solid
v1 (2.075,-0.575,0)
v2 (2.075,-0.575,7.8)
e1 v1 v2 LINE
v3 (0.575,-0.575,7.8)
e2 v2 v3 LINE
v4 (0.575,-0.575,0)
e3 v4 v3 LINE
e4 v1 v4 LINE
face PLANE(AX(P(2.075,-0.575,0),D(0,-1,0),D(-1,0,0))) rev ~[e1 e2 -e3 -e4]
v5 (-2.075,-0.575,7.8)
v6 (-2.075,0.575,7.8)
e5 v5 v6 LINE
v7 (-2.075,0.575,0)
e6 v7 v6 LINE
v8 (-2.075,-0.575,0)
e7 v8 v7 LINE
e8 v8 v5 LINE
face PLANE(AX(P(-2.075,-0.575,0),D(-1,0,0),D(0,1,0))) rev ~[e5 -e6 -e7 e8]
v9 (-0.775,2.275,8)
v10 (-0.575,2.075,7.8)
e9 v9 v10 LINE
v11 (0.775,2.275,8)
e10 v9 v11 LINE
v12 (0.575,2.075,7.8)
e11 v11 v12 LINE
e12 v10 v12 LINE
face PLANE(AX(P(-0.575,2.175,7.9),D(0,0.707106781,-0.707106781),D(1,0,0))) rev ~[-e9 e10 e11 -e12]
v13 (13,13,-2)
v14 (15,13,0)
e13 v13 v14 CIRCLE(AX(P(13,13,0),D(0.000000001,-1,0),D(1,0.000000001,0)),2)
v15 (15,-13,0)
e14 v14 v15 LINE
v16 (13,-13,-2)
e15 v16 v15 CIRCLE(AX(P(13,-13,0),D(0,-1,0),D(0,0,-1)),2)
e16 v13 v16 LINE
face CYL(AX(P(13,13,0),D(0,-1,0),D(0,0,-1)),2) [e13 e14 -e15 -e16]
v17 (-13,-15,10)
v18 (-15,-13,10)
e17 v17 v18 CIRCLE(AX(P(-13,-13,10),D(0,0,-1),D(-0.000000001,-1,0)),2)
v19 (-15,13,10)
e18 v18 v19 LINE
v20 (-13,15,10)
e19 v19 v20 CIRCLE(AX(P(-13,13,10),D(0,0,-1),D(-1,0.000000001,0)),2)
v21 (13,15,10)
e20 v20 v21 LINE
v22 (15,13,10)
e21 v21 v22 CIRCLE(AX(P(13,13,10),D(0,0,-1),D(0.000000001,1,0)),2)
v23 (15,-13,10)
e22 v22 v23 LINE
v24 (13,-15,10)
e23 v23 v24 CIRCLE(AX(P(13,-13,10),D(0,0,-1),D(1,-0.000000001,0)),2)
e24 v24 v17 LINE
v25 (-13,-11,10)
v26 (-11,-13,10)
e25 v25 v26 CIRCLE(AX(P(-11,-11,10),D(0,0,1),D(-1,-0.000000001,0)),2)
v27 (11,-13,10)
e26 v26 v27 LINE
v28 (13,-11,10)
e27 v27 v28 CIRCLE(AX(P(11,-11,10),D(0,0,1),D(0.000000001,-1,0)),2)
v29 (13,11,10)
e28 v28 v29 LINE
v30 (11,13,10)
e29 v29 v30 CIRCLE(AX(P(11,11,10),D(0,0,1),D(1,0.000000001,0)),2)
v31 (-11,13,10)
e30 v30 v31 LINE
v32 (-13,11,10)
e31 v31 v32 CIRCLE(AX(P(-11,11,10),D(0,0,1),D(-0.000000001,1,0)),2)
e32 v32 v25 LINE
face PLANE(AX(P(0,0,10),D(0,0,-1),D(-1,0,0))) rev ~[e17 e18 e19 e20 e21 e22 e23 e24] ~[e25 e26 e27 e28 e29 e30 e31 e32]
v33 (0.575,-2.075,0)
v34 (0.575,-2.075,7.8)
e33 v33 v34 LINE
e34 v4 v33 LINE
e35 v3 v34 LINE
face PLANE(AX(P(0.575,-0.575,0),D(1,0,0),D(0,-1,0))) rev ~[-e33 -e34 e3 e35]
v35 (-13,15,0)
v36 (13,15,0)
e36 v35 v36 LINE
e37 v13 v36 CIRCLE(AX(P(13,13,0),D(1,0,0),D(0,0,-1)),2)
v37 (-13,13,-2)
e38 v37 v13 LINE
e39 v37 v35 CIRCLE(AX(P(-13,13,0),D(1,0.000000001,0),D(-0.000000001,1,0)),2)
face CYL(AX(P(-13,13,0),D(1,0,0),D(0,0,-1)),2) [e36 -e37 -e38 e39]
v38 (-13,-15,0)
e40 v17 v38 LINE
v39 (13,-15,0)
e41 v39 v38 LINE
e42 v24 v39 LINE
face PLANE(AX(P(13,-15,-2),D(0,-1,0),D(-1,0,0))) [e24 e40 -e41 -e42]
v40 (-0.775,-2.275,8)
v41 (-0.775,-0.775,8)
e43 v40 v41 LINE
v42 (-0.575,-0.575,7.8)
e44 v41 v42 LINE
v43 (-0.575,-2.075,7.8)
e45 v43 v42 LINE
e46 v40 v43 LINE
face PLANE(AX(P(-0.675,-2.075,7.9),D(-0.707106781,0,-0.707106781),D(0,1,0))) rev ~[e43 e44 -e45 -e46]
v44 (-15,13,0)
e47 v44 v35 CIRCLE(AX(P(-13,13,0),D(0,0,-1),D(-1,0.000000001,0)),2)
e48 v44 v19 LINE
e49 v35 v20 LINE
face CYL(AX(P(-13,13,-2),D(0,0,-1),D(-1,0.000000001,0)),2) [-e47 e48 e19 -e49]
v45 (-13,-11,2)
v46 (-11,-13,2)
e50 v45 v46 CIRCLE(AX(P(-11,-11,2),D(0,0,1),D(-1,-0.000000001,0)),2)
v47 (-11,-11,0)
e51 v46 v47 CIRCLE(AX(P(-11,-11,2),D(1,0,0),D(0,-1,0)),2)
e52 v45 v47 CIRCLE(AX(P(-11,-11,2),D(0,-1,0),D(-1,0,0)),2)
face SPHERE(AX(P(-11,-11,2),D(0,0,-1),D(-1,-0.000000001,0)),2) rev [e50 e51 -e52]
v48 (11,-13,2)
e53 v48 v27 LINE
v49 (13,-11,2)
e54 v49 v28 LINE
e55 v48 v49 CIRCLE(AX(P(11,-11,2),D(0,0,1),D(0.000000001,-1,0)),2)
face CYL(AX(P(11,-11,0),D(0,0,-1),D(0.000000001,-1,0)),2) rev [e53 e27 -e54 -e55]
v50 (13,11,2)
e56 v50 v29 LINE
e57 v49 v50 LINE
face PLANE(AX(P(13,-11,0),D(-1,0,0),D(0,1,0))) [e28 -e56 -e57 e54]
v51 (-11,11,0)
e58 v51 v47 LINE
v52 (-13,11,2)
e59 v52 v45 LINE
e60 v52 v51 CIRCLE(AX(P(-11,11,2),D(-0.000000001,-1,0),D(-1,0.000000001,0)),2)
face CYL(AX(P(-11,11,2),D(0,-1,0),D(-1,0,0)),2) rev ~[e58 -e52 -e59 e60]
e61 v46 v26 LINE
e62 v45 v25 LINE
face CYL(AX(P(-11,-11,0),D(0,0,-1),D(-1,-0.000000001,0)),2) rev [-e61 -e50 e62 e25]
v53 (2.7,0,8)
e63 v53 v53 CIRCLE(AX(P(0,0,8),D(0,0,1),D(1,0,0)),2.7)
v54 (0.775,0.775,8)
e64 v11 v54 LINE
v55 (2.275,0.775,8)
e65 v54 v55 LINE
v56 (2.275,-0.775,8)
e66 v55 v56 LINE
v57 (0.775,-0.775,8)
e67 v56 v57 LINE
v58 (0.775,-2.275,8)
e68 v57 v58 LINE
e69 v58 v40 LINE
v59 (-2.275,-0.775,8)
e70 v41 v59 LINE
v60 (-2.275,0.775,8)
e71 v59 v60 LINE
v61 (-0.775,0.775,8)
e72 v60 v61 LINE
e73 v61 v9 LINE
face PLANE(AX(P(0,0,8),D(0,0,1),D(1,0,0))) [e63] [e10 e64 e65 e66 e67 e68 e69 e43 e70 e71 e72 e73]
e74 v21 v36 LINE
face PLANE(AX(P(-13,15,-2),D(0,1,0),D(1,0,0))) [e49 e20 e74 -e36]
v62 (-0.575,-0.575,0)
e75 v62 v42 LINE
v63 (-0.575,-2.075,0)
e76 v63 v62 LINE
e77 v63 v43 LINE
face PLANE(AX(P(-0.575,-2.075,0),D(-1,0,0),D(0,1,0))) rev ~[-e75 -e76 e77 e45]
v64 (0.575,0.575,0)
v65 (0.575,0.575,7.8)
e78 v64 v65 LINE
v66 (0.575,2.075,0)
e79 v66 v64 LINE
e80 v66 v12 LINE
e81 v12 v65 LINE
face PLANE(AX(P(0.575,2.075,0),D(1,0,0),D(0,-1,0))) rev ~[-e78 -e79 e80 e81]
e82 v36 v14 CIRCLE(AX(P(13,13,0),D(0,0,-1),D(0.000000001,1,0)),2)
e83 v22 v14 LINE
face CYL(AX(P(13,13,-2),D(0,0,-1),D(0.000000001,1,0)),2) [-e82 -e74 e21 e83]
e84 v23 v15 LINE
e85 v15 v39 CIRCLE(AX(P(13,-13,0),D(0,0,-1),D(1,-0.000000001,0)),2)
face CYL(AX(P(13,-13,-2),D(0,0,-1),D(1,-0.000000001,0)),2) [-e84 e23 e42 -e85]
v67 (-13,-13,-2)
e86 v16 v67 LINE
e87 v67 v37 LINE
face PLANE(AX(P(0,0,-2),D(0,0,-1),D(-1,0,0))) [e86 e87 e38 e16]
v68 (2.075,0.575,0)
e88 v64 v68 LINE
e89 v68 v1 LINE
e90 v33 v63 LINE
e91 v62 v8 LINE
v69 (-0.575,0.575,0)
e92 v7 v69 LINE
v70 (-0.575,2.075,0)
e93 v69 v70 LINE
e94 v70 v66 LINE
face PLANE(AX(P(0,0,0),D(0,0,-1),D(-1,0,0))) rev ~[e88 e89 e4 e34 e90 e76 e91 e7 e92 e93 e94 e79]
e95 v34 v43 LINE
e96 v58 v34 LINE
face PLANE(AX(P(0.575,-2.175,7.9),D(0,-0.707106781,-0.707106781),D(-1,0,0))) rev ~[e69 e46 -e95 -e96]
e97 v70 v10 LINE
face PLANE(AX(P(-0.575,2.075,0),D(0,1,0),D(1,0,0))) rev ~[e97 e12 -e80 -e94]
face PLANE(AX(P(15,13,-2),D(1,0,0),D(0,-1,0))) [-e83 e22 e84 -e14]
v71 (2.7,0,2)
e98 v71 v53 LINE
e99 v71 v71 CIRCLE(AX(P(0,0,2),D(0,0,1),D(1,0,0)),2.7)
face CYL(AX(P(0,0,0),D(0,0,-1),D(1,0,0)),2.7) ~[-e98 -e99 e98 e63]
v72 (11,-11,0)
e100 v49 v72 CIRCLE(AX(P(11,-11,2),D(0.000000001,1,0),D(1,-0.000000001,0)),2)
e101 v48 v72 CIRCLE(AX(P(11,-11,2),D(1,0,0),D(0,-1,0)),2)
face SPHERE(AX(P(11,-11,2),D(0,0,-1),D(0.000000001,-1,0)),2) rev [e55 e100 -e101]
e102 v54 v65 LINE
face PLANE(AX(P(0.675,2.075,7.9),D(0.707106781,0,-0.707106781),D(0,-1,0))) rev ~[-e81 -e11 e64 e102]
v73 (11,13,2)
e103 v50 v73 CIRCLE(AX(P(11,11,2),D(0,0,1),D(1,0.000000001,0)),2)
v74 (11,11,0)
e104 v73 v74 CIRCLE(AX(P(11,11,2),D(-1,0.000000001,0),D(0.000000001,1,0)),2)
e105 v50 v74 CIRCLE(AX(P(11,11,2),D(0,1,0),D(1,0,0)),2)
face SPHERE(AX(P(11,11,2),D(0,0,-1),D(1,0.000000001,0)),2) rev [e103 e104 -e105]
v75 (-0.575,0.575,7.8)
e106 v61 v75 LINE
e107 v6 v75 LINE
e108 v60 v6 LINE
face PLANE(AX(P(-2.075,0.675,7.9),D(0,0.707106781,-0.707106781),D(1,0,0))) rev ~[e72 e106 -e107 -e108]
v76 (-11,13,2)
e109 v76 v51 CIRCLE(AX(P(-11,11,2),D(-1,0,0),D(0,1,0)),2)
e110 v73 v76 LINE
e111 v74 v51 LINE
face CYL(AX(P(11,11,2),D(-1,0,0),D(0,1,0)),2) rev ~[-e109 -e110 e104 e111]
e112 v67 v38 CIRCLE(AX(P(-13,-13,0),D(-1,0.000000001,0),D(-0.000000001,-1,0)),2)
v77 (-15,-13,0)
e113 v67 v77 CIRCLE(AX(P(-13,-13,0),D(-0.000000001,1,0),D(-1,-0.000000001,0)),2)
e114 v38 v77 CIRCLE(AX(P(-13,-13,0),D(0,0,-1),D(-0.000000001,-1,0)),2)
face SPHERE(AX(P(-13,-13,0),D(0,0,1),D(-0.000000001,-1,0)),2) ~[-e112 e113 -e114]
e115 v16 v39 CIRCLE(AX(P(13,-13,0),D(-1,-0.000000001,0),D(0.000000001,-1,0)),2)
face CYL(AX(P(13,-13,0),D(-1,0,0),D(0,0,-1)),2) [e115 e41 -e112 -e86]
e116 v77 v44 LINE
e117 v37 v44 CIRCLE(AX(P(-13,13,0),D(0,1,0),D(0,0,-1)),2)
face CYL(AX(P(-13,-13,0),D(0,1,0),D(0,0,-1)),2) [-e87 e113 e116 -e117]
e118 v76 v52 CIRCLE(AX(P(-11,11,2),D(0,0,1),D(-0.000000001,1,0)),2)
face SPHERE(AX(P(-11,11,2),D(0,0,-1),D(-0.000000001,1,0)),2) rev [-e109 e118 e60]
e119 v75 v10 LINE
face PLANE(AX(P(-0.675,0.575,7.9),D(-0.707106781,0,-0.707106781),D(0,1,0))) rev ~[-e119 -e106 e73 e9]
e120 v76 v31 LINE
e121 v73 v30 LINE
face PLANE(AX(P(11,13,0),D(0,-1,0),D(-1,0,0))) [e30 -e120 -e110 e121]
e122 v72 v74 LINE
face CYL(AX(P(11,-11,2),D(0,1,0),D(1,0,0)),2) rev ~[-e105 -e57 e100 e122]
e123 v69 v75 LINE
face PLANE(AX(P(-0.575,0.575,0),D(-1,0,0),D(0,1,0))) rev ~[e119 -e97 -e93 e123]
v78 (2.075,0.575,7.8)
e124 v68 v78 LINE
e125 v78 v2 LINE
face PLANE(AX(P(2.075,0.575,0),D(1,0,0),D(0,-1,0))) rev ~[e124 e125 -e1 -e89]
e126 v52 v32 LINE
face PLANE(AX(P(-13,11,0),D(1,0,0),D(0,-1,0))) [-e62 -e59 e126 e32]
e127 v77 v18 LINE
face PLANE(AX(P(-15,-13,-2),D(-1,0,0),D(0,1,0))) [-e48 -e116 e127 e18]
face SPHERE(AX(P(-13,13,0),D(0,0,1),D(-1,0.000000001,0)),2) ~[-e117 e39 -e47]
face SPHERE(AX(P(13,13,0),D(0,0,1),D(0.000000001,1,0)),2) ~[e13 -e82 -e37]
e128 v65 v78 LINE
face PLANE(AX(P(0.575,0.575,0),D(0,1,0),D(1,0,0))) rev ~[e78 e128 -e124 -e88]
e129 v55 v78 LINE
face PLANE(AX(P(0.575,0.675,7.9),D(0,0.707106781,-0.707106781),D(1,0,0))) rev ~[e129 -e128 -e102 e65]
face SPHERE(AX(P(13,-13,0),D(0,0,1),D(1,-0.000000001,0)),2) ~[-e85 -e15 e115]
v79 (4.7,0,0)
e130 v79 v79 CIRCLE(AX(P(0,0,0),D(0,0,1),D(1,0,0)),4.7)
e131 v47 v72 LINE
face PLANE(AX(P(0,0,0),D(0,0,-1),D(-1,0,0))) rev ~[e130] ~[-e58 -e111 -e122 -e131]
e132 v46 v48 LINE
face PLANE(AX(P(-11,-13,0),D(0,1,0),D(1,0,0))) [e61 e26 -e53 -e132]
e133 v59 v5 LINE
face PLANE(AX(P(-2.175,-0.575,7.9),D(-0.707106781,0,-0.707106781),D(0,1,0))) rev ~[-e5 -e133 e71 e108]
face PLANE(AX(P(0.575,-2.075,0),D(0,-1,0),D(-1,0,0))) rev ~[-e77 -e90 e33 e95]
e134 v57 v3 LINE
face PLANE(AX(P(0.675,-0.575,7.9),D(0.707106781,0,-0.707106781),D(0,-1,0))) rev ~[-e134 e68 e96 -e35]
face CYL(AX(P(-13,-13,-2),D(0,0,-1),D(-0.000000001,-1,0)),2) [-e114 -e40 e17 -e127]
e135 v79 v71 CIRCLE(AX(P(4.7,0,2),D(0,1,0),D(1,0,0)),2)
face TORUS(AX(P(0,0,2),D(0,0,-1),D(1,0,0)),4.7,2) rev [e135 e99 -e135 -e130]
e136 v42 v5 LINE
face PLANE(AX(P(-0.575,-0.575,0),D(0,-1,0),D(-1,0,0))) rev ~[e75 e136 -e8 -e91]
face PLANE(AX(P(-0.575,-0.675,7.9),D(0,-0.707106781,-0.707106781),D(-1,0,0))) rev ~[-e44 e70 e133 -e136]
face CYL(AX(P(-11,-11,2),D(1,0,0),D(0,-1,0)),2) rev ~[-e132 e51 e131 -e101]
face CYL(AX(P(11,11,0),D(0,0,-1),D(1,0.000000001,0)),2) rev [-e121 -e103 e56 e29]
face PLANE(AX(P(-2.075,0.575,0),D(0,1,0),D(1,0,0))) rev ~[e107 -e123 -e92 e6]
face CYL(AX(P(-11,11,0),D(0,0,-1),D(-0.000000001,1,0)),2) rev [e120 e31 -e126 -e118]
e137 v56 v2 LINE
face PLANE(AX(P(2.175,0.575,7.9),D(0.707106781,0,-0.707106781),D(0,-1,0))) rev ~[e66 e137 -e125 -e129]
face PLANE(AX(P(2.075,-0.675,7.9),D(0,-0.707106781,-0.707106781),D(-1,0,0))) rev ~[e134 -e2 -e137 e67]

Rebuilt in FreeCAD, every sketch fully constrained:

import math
import FreeCAD as App
import Part
import Sketcher

V = App.Vector


def edges_at(feature, points):
    """Names of the edges that pass closest to the given points."""
    edges = feature.Shape.Edges
    near = lambda p: min(range(len(edges)), key=lambda i: edges[i].distToShape(Part.Vertex(*p))[0])
    return sorted({f"Edge{near(p) + 1}" for p in points})


def add_polygon(sketch, points):
    """Adds a closed chain of lines whose ends are joined by coincident constraints."""
    first, n = sketch.GeometryCount, len(points)
    for a, b in zip(points, points[1:] + points[:1]):
        sketch.addGeometry(Part.LineSegment(App.Vector(*a, 0), App.Vector(*b, 0)), False)
    for i in range(n):
        sketch.addConstraint(Sketcher.Constraint("Coincident", first + i, 2, first + (i + 1) % n, 1))

doc = App.newDocument("Part")
params = doc.addObject("Spreadsheet::Sheet", "Params")
for row, (alias, value) in enumerate([
    ("sketch1_radius", "2 mm"),
    ("sketch1_width", "26 mm"),
    ("pad1_length", "10 mm"),
    ("sketch2_diameter", "5.4 mm"),
    ("sketch2_width", "1.5 mm"),
    ("sketch2_width2", "1.15 mm"),
    ("pad2_length", "8 mm"),
    ("sketch3_radius", "2 mm"),
    ("sketch3_width", "26 mm"),
    ("pad3_length", "2 mm"),
    ("fillet_radius", "2 mm"),
    ("fillet2_radius", "2 mm"),
    ("chamfer_size", "0.2 mm"),
], start=1):
    params.set(f"A{row}", alias)
    params.set(f"B{row}", "=" + value)
    params.setAlias(f"B{row}", alias)

body = doc.addObject("PartDesign::Body", "Body")

# Sketch on XY plane
sketch1 = body.newObject("Sketcher::SketchObject", "Sketch")
sketch1.AttachmentSupport = (doc.getObject("XY_Plane"), [""])
sketch1.MapMode = "FlatFace"
sketch1.addGeometry([
    Part.ArcOfCircle(Part.Circle(V(-13, 13, 0), V(0, 0, 1), 2), math.radians(90), math.radians(180)),  # 0
    Part.LineSegment(V(-15, 13, 0), V(-15, -13, 0)),  # 1
    Part.ArcOfCircle(Part.Circle(V(-13, -13, 0), V(0, 0, 1), 2), math.radians(-180), math.radians(-90)),  # 2
    Part.LineSegment(V(-13, -15, 0), V(13, -15, 0)),  # 3
    Part.ArcOfCircle(Part.Circle(V(13, -13, 0), V(0, 0, 1), 2), math.radians(-90), math.radians(0)),  # 4
    Part.LineSegment(V(15, -13, 0), V(15, 13, 0)),  # 5
    Part.ArcOfCircle(Part.Circle(V(13, 13, 0), V(0, 0, 1), 2), math.radians(0), math.radians(90)),  # 6
    Part.LineSegment(V(13, 15, 0), V(-13, 15, 0)),  # 7
    Part.LineSegment(V(-13, -11, 0), V(-13, 11, 0)),  # 8
    Part.ArcOfCircle(Part.Circle(V(-11, 11, 0), V(0, 0, 1), 2), math.radians(90), math.radians(180)),  # 9
    Part.LineSegment(V(-11, 13, 0), V(11, 13, 0)),  # 10
    Part.ArcOfCircle(Part.Circle(V(11, 11, 0), V(0, 0, 1), 2), math.radians(0), math.radians(90)),  # 11
    Part.LineSegment(V(13, 11, 0), V(13, -11, 0)),  # 12
    Part.ArcOfCircle(Part.Circle(V(11, -11, 0), V(0, 0, 1), 2), math.radians(-90), math.radians(0)),  # 13
    Part.LineSegment(V(11, -13, 0), V(-11, -13, 0)),  # 14
    Part.ArcOfCircle(Part.Circle(V(-11, -11, 0), V(0, 0, 1), 2), math.radians(-180), math.radians(-90)),  # 15
], False)
sketch1.addConstraint([
    Sketcher.Constraint("Tangent", 0, 2, 1, 1),
    Sketcher.Constraint("Tangent", 1, 2, 2, 1),
    Sketcher.Constraint("Tangent", 2, 2, 3, 1),
    Sketcher.Constraint("Tangent", 3, 2, 4, 1),
    Sketcher.Constraint("Tangent", 4, 2, 5, 1),
    Sketcher.Constraint("Tangent", 5, 2, 6, 1),
    Sketcher.Constraint("Tangent", 6, 2, 7, 1),
    Sketcher.Constraint("Tangent", 7, 2, 0, 1),
    Sketcher.Constraint("Tangent", 8, 2, 9, 2),
    Sketcher.Constraint("Tangent", 9, 1, 10, 1),
    Sketcher.Constraint("Tangent", 10, 2, 11, 2),
    Sketcher.Constraint("Tangent", 11, 1, 12, 1),
    Sketcher.Constraint("Tangent", 12, 2, 13, 2),
    Sketcher.Constraint("Tangent", 13, 1, 14, 1),
    Sketcher.Constraint("Tangent", 14, 2, 15, 2),
    Sketcher.Constraint("Tangent", 15, 1, 8, 1),
    Sketcher.Constraint("Vertical", 1),
    Sketcher.Constraint("Horizontal", 3),
    Sketcher.Constraint("Vertical", 5),
    Sketcher.Constraint("Horizontal", 7),
    Sketcher.Constraint("Vertical", 8),
    Sketcher.Constraint("Horizontal", 10),
    Sketcher.Constraint("Vertical", 12),
    Sketcher.Constraint("Horizontal", 14),
    Sketcher.Constraint("Equal", 0, 2),
    Sketcher.Constraint("Equal", 2, 4),
    Sketcher.Constraint("Equal", 4, 6),
    Sketcher.Constraint("Equal", 6, 9),
    Sketcher.Constraint("Equal", 9, 11),
    Sketcher.Constraint("Equal", 11, 13),
    Sketcher.Constraint("Equal", 13, 15),
    Sketcher.Constraint("Symmetric", 0, 3, 4, 3, -1, 1),
    Sketcher.Constraint("Symmetric", 9, 3, 13, 3, -1, 1),
    Sketcher.Constraint("Horizontal", 5, 2, 9, 1),
    Sketcher.Constraint("Vertical", 7, 2, 8, 2),
    Sketcher.Constraint("Equal", 7, 1),
    Sketcher.Constraint("Radius", 0, 2.0),
    Sketcher.Constraint("DistanceX", 3, 1, 3, 2, 26.0),
])
sketch1.setExpression("Constraints[36]", "Params.sketch1_radius")
sketch1.setExpression("Constraints[37]", "Params.sketch1_width")
pad1 = body.newObject("PartDesign::Pad", "Pad")
pad1.Profile = sketch1
pad1.setExpression("Length", "Params.pad1_length")
body2 = doc.addObject("PartDesign::Body", "Body001")

# Sketch on XY plane
sketch2 = body2.newObject("Sketcher::SketchObject", "Sketch001")
sketch2.AttachmentSupport = (doc.getObject("XY_Plane001"), [""])
sketch2.MapMode = "FlatFace"
sketch2.addGeometry(Part.Circle(V(0, 0, 0), V(0, 0, 1), 2.7), False)  # 0
add_polygon(sketch2, [(-0.6, -0.6), (-2.1, -0.6), (-2.1, 0.6), (-0.6, 0.6), (-0.6, 2.1), (0.6, 2.1), (0.6, 0.6), (2.1, 0.6), (2.1, -0.6), (0.6, -0.6), (0.6, -2.1), (-0.6, -2.1)])  # lines 1-12
sketch2.addConstraint([
    Sketcher.Constraint("Horizontal", 1),
    Sketcher.Constraint("Vertical", 2),
    Sketcher.Constraint("Horizontal", 3),
    Sketcher.Constraint("Vertical", 4),
    Sketcher.Constraint("Horizontal", 5),
    Sketcher.Constraint("Vertical", 6),
    Sketcher.Constraint("Horizontal", 7),
    Sketcher.Constraint("Vertical", 8),
    Sketcher.Constraint("Horizontal", 9),
    Sketcher.Constraint("Vertical", 10),
    Sketcher.Constraint("Horizontal", 11),
    Sketcher.Constraint("Vertical", 12),
    Sketcher.Constraint("Coincident", 0, 3, -1, 1),
    Sketcher.Constraint("Symmetric", 1, 2, 7, 2, -1, 1),
    Sketcher.Constraint("Symmetric", 3, 2, 9, 2, -1, 1),
    Sketcher.Constraint("Symmetric", 5, 2, 11, 2, -1, 1),
    Sketcher.Constraint("Symmetric", 3, 2, 6, 2, -2),
    Sketcher.Constraint("Equal", 11, 2),
    Sketcher.Constraint("Equal", 9, 4),
    Sketcher.Constraint("Diameter", 0, 5.4),
    Sketcher.Constraint("DistanceX", 1, 2, 1, 1, 1.5),
    Sketcher.Constraint("DistanceX", 5, 1, 5, 2, 1.15),
])
sketch2.setExpression("Constraints[31]", "Params.sketch2_diameter")
sketch2.setExpression("Constraints[32]", "Params.sketch2_width")
sketch2.setExpression("Constraints[33]", "Params.sketch2_width2")
pad2 = body2.newObject("PartDesign::Pad", "Pad001")
pad2.Profile = sketch2
pad2.setExpression("Length", "Params.pad2_length")
body.AllowCompound = True
doc.recompute()

boolean = body.newObject("PartDesign::Boolean", "Boolean")
boolean.Type = "Fuse"
boolean.addObjects([body2])

# Sketch on XY plane
sketch3 = body.newObject("Sketcher::SketchObject", "Sketch002")
sketch3.AttachmentSupport = (doc.getObject("XY_Plane"), [""])
sketch3.MapMode = "FlatFace"
sketch3.AttachmentOffset = App.Placement(V(0, 0, -2), App.Rotation())
sketch3.addGeometry([
    Part.LineSegment(V(13, 15, 0), V(-13, 15, 0)),  # 0
    Part.ArcOfCircle(Part.Circle(V(-13, 13, 0), V(0, 0, 1), 2), math.radians(90), math.radians(180)),  # 1
    Part.LineSegment(V(-15, 13, 0), V(-15, -13, 0)),  # 2
    Part.ArcOfCircle(Part.Circle(V(-13, -13, 0), V(0, 0, 1), 2), math.radians(-180), math.radians(-90)),  # 3
    Part.LineSegment(V(-13, -15, 0), V(13, -15, 0)),  # 4
    Part.ArcOfCircle(Part.Circle(V(13, -13, 0), V(0, 0, 1), 2), math.radians(-90), math.radians(0)),  # 5
    Part.LineSegment(V(15, -13, 0), V(15, 13, 0)),  # 6
    Part.ArcOfCircle(Part.Circle(V(13, 13, 0), V(0, 0, 1), 2), math.radians(0), math.radians(90)),  # 7
], False)
sketch3.addConstraint([
    Sketcher.Constraint("Tangent", 0, 2, 1, 1),
    Sketcher.Constraint("Tangent", 1, 2, 2, 1),
    Sketcher.Constraint("Tangent", 2, 2, 3, 1),
    Sketcher.Constraint("Tangent", 3, 2, 4, 1),
    Sketcher.Constraint("Tangent", 4, 2, 5, 1),
    Sketcher.Constraint("Tangent", 5, 2, 6, 1),
    Sketcher.Constraint("Tangent", 6, 2, 7, 1),
    Sketcher.Constraint("Tangent", 7, 2, 0, 1),
    Sketcher.Constraint("Horizontal", 0),
    Sketcher.Constraint("Vertical", 2),
    Sketcher.Constraint("Horizontal", 4),
    Sketcher.Constraint("Vertical", 6),
    Sketcher.Constraint("Equal", 1, 3),
    Sketcher.Constraint("Equal", 3, 5),
    Sketcher.Constraint("Equal", 5, 7),
    Sketcher.Constraint("Symmetric", 1, 3, 5, 3, -1, 1),
    Sketcher.Constraint("Equal", 4, 2),
    Sketcher.Constraint("Radius", 1, 2.0),
    Sketcher.Constraint("DistanceX", 0, 2, 0, 1, 26.0),
])
sketch3.setExpression("Constraints[17]", "Params.sketch3_radius")
sketch3.setExpression("Constraints[18]", "Params.sketch3_width")
pad3 = body.newObject("PartDesign::Pad", "Pad002")
pad3.Profile = sketch3
pad3.setExpression("Length", "Params.pad3_length")
doc.recompute()

fillet = body.newObject("PartDesign::Fillet", "Fillet")
fillet.Base = (pad3, edges_at(pad3, [
    (-14.414, -14.414, -2),
    (-15, 0, -2),
    (14.414, 14.414, -2),
    (14.414, -14.414, -2),
    (0, -15, -2),
    (-14.414, 14.414, -2),
    (0, 15, -2),
    (15, 0, -2),
]))
fillet.setExpression("Radius", "Params.fillet_radius")
doc.recompute()

fillet2 = body.newObject("PartDesign::Fillet", "Fillet001")
fillet2.Base = (fillet, edges_at(fillet, [
    (0, -13, 0),
    (12.414, -12.414, 0),
    (13, 0, 0),
    (12.414, 12.414, 0),
    (0, 13, 0),
    (-12.414, 12.414, 0),
    (-13, 0, 0),
    (-12.414, -12.414, 0),
    (-2.7, 0, 0),
]))
fillet2.setExpression("Radius", "Params.fillet2_radius")
doc.recompute()

chamfer = body.newObject("PartDesign::Chamfer", "Chamfer")
chamfer.Base = (fillet2, edges_at(fillet2, [
    (1.325, -0.575, 8),
    (0, -2.075, 8),
    (-0.575, -1.325, 8),
    (-1.325, -0.575, 8),
    (-2.075, 0, 8),
    (-0.575, 1.325, 8),
    (0, 2.075, 8),
    (0.575, 1.325, 8),
    (1.325, 0.575, 8),
    (2.075, 0, 8),
    (0.575, -1.325, 8),
    (-1.325, 0.575, 8),
]))
chamfer.setExpression("Size", "Params.chamfer_size")

doc.recompute()
